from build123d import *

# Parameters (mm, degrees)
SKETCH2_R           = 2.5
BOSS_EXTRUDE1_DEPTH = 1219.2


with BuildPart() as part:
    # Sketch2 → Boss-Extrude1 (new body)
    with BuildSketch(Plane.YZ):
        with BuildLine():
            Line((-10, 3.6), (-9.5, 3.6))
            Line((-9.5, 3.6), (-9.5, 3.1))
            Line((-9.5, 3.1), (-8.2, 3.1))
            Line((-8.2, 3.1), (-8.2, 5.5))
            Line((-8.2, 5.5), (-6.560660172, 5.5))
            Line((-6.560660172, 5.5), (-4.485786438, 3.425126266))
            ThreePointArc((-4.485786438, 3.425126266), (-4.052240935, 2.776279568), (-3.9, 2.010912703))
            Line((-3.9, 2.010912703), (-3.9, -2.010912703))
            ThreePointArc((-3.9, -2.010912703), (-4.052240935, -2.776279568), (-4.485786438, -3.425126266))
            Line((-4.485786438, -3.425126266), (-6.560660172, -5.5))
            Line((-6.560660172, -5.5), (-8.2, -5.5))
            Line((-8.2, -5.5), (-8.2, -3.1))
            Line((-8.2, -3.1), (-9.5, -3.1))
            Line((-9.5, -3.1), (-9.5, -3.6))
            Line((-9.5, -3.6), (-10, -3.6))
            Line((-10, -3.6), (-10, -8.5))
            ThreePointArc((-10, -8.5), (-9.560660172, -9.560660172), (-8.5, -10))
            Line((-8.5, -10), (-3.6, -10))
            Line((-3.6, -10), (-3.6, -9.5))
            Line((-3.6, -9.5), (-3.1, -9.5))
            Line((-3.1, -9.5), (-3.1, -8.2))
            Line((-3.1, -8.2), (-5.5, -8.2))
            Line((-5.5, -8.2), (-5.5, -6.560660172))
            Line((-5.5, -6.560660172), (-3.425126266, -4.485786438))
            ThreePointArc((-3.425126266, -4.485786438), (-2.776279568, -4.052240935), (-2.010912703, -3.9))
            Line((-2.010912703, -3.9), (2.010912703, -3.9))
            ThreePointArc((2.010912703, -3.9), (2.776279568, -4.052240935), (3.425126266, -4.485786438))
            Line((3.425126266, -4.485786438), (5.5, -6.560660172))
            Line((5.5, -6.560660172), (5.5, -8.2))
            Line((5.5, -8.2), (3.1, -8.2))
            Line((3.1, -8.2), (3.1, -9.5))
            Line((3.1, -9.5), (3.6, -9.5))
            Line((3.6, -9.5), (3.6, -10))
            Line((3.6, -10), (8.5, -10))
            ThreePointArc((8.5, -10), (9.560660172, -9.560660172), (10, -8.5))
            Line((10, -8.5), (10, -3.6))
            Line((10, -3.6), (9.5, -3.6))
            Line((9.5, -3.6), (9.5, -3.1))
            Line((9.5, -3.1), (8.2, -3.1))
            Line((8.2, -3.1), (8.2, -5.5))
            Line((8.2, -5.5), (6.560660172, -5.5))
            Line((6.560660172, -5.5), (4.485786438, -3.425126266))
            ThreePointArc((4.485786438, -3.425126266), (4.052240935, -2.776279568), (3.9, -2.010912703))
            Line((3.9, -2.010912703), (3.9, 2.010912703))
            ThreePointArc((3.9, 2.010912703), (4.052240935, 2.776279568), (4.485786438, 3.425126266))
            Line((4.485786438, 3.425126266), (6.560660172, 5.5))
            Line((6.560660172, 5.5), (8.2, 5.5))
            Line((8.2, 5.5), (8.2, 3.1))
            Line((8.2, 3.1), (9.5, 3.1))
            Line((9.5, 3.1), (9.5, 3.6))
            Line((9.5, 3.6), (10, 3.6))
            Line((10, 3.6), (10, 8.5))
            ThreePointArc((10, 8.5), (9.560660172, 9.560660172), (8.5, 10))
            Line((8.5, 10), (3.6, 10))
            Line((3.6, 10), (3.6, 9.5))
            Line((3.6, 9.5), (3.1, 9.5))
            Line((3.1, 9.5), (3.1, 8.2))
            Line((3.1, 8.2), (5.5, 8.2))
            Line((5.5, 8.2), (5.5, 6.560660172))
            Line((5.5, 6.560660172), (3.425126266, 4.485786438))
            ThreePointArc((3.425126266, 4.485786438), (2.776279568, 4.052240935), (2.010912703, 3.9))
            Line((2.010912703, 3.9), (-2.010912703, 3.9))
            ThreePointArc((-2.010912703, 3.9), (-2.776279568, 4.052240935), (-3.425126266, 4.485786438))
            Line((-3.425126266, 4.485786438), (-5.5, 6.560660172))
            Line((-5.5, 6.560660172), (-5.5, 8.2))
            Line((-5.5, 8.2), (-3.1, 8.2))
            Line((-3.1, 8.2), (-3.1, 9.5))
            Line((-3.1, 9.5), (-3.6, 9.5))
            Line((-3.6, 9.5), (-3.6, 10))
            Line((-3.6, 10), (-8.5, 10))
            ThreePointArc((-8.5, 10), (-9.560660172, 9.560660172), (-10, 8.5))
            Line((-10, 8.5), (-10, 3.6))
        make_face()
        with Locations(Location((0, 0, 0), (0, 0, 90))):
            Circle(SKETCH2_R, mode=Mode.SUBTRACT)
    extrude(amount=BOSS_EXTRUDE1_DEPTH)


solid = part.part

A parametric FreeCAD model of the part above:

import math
import FreeCAD as App
import Part
import Sketcher

doc = App.newDocument("Part")
body = doc.addObject("PartDesign::Body", "Body")

# Sketch on YZ plane
sketch1 = body.newObject("Sketcher::SketchObject", "Sketch")
sketch1.AttachmentSupport = (doc.getObject("YZ_Plane"), [""])
sketch1.MapMode = "FlatFace"
sketch1.addGeometry([
    Part.LineSegment(App.Vector(-10, 3.6, 0), App.Vector(-9.5, 3.6, 0)),  # 0
    Part.LineSegment(App.Vector(-9.5, 3.6, 0), App.Vector(-9.5, 3.1, 0)),  # 1
    Part.LineSegment(App.Vector(-9.5, 3.1, 0), App.Vector(-8.2, 3.1, 0)),  # 2
    Part.LineSegment(App.Vector(-8.2, 3.1, 0), App.Vector(-8.2, 5.5, 0)),  # 3
    Part.LineSegment(App.Vector(-8.2, 5.5, 0), App.Vector(-6.6, 5.5, 0)),  # 4
    Part.LineSegment(App.Vector(-6.6, 5.5, 0), App.Vector(-4.5, 3.4, 0)),  # 5
    Part.ArcOfCircle(Part.Circle(App.Vector(-5.9, 2, 0), App.Vector(0, 0, 1), 2), math.radians(0), math.radians(45)),  # 6
    Part.LineSegment(App.Vector(-3.9, 2, 0), App.Vector(-3.9, -2, 0)),  # 7
    Part.ArcOfCircle(Part.Circle(App.Vector(-5.9, -2, 0), App.Vector(0, 0, 1), 2), math.radians(-45), math.radians(0)),  # 8
    Part.LineSegment(App.Vector(-4.5, -3.4, 0), App.Vector(-6.6, -5.5, 0)),  # 9
    Part.LineSegment(App.Vector(-6.6, -5.5, 0), App.Vector(-8.2, -5.5, 0)),  # 10
    Part.LineSegment(App.Vector(-8.2, -5.5, 0), App.Vector(-8.2, -3.1, 0)),  # 11
    Part.LineSegment(App.Vector(-8.2, -3.1, 0), App.Vector(-9.5, -3.1, 0)),  # 12
    Part.LineSegment(App.Vector(-9.5, -3.1, 0), App.Vector(-9.5, -3.6, 0)),  # 13
    Part.LineSegment(App.Vector(-9.5, -3.6, 0), App.Vector(-10, -3.6, 0)),  # 14
    Part.LineSegment(App.Vector(-10, -3.6, 0), App.Vector(-10, -8.5, 0)),  # 15
    Part.ArcOfCircle(Part.Circle(App.Vector(-8.5, -8.5, 0), App.Vector(0, 0, 1), 1.5), math.radians(180), math.radians(270)),  # 16
    Part.LineSegment(App.Vector(-8.5, -10, 0), App.Vector(-3.6, -10, 0)),  # 17
    Part.LineSegment(App.Vector(-3.6, -10, 0), App.Vector(-3.6, -9.5, 0)),  # 18
    Part.LineSegment(App.Vector(-3.6, -9.5, 0), App.Vector(-3.1, -9.5, 0)),  # 19
    Part.LineSegment(App.Vector(-3.1, -9.5, 0), App.Vector(-3.1, -8.2, 0)),  # 20
    Part.LineSegment(App.Vector(-3.1, -8.2, 0), App.Vector(-5.5, -8.2, 0)),  # 21
    Part.LineSegment(App.Vector(-5.5, -8.2, 0), App.Vector(-5.5, -6.6, 0)),  # 22
    Part.LineSegment(App.Vector(-5.5, -6.6, 0), App.Vector(-3.4, -4.5, 0)),  # 23
    Part.ArcOfCircle(Part.Circle(App.Vector(-2, -5.9, 0), App.Vector(0, 0, 1), 2), math.radians(90), math.radians(135)),  # 24
    Part.LineSegment(App.Vector(-2, -3.9, 0), App.Vector(2, -3.9, 0)),  # 25
    Part.ArcOfCircle(Part.Circle(App.Vector(2, -5.9, 0), App.Vector(0, 0, 1), 2), math.radians(45), math.radians(90)),  # 26
    Part.LineSegment(App.Vector(3.4, -4.5, 0), App.Vector(5.5, -6.6, 0)),  # 27
    Part.LineSegment(App.Vector(5.5, -6.6, 0), App.Vector(5.5, -8.2, 0)),  # 28
    Part.LineSegment(App.Vector(5.5, -8.2, 0), App.Vector(3.1, -8.2, 0)),  # 29
    Part.LineSegment(App.Vector(3.1, -8.2, 0), App.Vector(3.1, -9.5, 0)),  # 30
    Part.LineSegment(App.Vector(3.1, -9.5, 0), App.Vector(3.6, -9.5, 0)),  # 31
    Part.LineSegment(App.Vector(3.6, -9.5, 0), App.Vector(3.6, -10, 0)),  # 32
    Part.LineSegment(App.Vector(3.6, -10, 0), App.Vector(8.5, -10, 0)),  # 33
    Part.ArcOfCircle(Part.Circle(App.Vector(8.5, -8.5, 0), App.Vector(0, 0, 1), 1.5), math.radians(-90), math.radians(0)),  # 34
    Part.LineSegment(App.Vector(10, -8.5, 0), App.Vector(10, -3.6, 0)),  # 35
    Part.LineSegment(App.Vector(10, -3.6, 0), App.Vector(9.5, -3.6, 0)),  # 36
    Part.LineSegment(App.Vector(9.5, -3.6, 0), App.Vector(9.5, -3.1, 0)),  # 37
    Part.LineSegment(App.Vector(9.5, -3.1, 0), App.Vector(8.2, -3.1, 0)),  # 38
    Part.LineSegment(App.Vector(8.2, -3.1, 0), App.Vector(8.2, -5.5, 0)),  # 39
    Part.LineSegment(App.Vector(8.2, -5.5, 0), App.Vector(6.6, -5.5, 0)),  # 40
    Part.LineSegment(App.Vector(6.6, -5.5, 0), App.Vector(4.5, -3.4, 0)),  # 41
    Part.ArcOfCircle(Part.Circle(App.Vector(5.9, -2, 0), App.Vector(0, 0, 1), 2), math.radians(180), math.radians(225)),  # 42
    Part.LineSegment(App.Vector(3.9, -2, 0), App.Vector(3.9, 2, 0)),  # 43
    Part.ArcOfCircle(Part.Circle(App.Vector(5.9, 2, 0), App.Vector(0, 0, 1), 2), math.radians(135), math.radians(180)),  # 44
    Part.LineSegment(App.Vector(4.5, 3.4, 0), App.Vector(6.6, 5.5, 0)),  # 45
    Part.LineSegment(App.Vector(6.6, 5.5, 0), App.Vector(8.2, 5.5, 0)),  # 46
    Part.LineSegment(App.Vector(8.2, 5.5, 0), App.Vector(8.2, 3.1, 0)),  # 47
    Part.LineSegment(App.Vector(8.2, 3.1, 0), App.Vector(9.5, 3.1, 0)),  # 48
    Part.LineSegment(App.Vector(9.5, 3.1, 0), App.Vector(9.5, 3.6, 0)),  # 49
    Part.LineSegment(App.Vector(9.5, 3.6, 0), App.Vector(10, 3.6, 0)),  # 50
    Part.LineSegment(App.Vector(10, 3.6, 0), App.Vector(10, 8.5, 0)),  # 51
    Part.ArcOfCircle(Part.Circle(App.Vector(8.5, 8.5, 0), App.Vector(0, 0, 1), 1.5), math.radians(0), math.radians(90)),  # 52
    Part.LineSegment(App.Vector(8.5, 10, 0), App.Vector(3.6, 10, 0)),  # 53
    Part.LineSegment(App.Vector(3.6, 10, 0), App.Vector(3.6, 9.5, 0)),  # 54
    Part.LineSegment(App.Vector(3.6, 9.5, 0), App.Vector(3.1, 9.5, 0)),  # 55
    Part.LineSegment(App.Vector(3.1, 9.5, 0), App.Vector(3.1, 8.2, 0)),  # 56
    Part.LineSegment(App.Vector(3.1, 8.2, 0), App.Vector(5.5, 8.2, 0)),  # 57
    Part.LineSegment(App.Vector(5.5, 8.2, 0), App.Vector(5.5, 6.6, 0)),  # 58
    Part.LineSegment(App.Vector(5.5, 6.6, 0), App.Vector(3.4, 4.5, 0)),  # 59
    Part.ArcOfCircle(Part.Circle(App.Vector(2, 5.9, 0), App.Vector(0, 0, 1), 2), math.radians(-90), math.radians(-45)),  # 60
    Part.LineSegment(App.Vector(2, 3.9, 0), App.Vector(-2, 3.9, 0)),  # 61
    Part.ArcOfCircle(Part.Circle(App.Vector(-2, 5.9, 0), App.Vector(0, 0, 1), 2), math.radians(-135), math.radians(-90)),  # 62
    Part.LineSegment(App.Vector(-3.4, 4.5, 0), App.Vector(-5.5, 6.6, 0)),  # 63
    Part.LineSegment(App.Vector(-5.5, 6.6, 0), App.Vector(-5.5, 8.2, 0)),  # 64
    Part.LineSegment(App.Vector(-5.5, 8.2, 0), App.Vector(-3.1, 8.2, 0)),  # 65
    Part.LineSegment(App.Vector(-3.1, 8.2, 0), App.Vector(-3.1, 9.5, 0)),  # 66
    Part.LineSegment(App.Vector(-3.1, 9.5, 0), App.Vector(-3.6, 9.5, 0)),  # 67
    Part.LineSegment(App.Vector(-3.6, 9.5, 0), App.Vector(-3.6, 10, 0)),  # 68
    Part.LineSegment(App.Vector(-3.6, 10, 0), App.Vector(-8.5, 10, 0)),  # 69
    Part.ArcOfCircle(Part.Circle(App.Vector(-8.5, 8.5, 0), App.Vector(0, 0, 1), 1.5), math.radians(90), math.radians(180)),  # 70
    Part.LineSegment(App.Vector(-10, 8.5, 0), App.Vector(-10, 3.6, 0)),  # 71
    Part.Circle(App.Vector(0, 0, 0), App.Vector(0, 0, 1), 2.5),  # 72
], False)
sketch1.addConstraint([
    Sketcher.Constraint("Coincident", 0, 2, 1, 1),
    Sketcher.Constraint("Coincident", 1, 2, 2, 1),
    Sketcher.Constraint("Coincident", 2, 2, 3, 1),
    Sketcher.Constraint("Coincident", 3, 2, 4, 1),
    Sketcher.Constraint("Coincident", 4, 2, 5, 1),
    Sketcher.Constraint("Tangent", 5, 2, 6, 2),
    Sketcher.Constraint("Tangent", 6, 1, 7, 1),
    Sketcher.Constraint("Tangent", 7, 2, 8, 2),
    Sketcher.Constraint("Tangent", 8, 1, 9, 1),
    Sketcher.Constraint("Coincident", 9, 2, 10, 1),
    Sketcher.Constraint("Coincident", 10, 2, 11, 1),
    Sketcher.Constraint("Coincident", 11, 2, 12, 1),
    Sketcher.Constraint("Coincident", 12, 2, 13, 1),
    Sketcher.Constraint("Coincident", 13, 2, 14, 1),
    Sketcher.Constraint("Coincident", 14, 2, 15, 1),
    Sketcher.Constraint("Tangent", 15, 2, 16, 1),
    Sketcher.Constraint("Tangent", 16, 2, 17, 1),
    Sketcher.Constraint("Coincident", 17, 2, 18, 1),
    Sketcher.Constraint("Coincident", 18, 2, 19, 1),
    Sketcher.Constraint("Coincident", 19, 2, 20, 1),
    Sketcher.Constraint("Coincident", 20, 2, 21, 1),
    Sketcher.Constraint("Coincident", 21, 2, 22, 1),
    Sketcher.Constraint("Coincident", 22, 2, 23, 1),
    Sketcher.Constraint("Tangent", 23, 2, 24, 2),
    Sketcher.Constraint("Tangent", 24, 1, 25, 1),
    Sketcher.Constraint("Tangent", 25, 2, 26, 2),
    Sketcher.Constraint("Tangent", 26, 1, 27, 1),
    Sketcher.Constraint("Coincident", 27, 2, 28, 1),
    Sketcher.Constraint("Coincident", 28, 2, 29, 1),
    Sketcher.Constraint("Coincident", 29, 2, 30, 1),
    Sketcher.Constraint("Coincident", 30, 2, 31, 1),
    Sketcher.Constraint("Coincident", 31, 2, 32, 1),
    Sketcher.Constraint("Coincident", 32, 2, 33, 1),
    Sketcher.Constraint("Tangent", 33, 2, 34, 1),
    Sketcher.Constraint("Tangent", 34, 2, 35, 1),
    Sketcher.Constraint("Coincident", 35, 2, 36, 1),
    Sketcher.Constraint("Coincident", 36, 2, 37, 1),
    Sketcher.Constraint("Coincident", 37, 2, 38, 1),
    Sketcher.Constraint("Coincident", 38, 2, 39, 1),
    Sketcher.Constraint("Coincident", 39, 2, 40, 1),
    Sketcher.Constraint("Coincident", 40, 2, 41, 1),
    Sketcher.Constraint("Tangent", 41, 2, 42, 2),
    Sketcher.Constraint("Tangent", 42, 1, 43, 1),
    Sketcher.Constraint("Tangent", 43, 2, 44, 2),
    Sketcher.Constraint("Tangent", 44, 1, 45, 1),
    Sketcher.Constraint("Coincident", 45, 2, 46, 1),
    Sketcher.Constraint("Coincident", 46, 2, 47, 1),
    Sketcher.Constraint("Coincident", 47, 2, 48, 1),
    Sketcher.Constraint("Coincident", 48, 2, 49, 1),
    Sketcher.Constraint("Coincident", 49, 2, 50, 1),
    Sketcher.Constraint("Coincident", 50, 2, 51, 1),
    Sketcher.Constraint("Tangent", 51, 2, 52, 1),
    Sketcher.Constraint("Tangent", 52, 2, 53, 1),
    Sketcher.Constraint("Coincident", 53, 2, 54, 1),
    Sketcher.Constraint("Coincident", 54, 2, 55, 1),
    Sketcher.Constraint("Coincident", 55, 2, 56, 1),
    Sketcher.Constraint("Coincident", 56, 2, 57, 1),
    Sketcher.Constraint("Coincident", 57, 2, 58, 1),
    Sketcher.Constraint("Coincident", 58, 2, 59, 1),
    Sketcher.Constraint("Tangent", 59, 2, 60, 2),
    Sketcher.Constraint("Tangent", 60, 1, 61, 1),
    Sketcher.Constraint("Tangent", 61, 2, 62, 2),
    Sketcher.Constraint("Tangent", 62, 1, 63, 1),
    Sketcher.Constraint("Coincident", 63, 2, 64, 1),
    Sketcher.Constraint("Coincident", 64, 2, 65, 1),
    Sketcher.Constraint("Coincident", 65, 2, 66, 1),
    Sketcher.Constraint("Coincident", 66, 2, 67, 1),
    Sketcher.Constraint("Coincident", 67, 2, 68, 1),
    Sketcher.Constraint("Coincident", 68, 2, 69, 1),
    Sketcher.Constraint("Tangent", 69, 2, 70, 1),
    Sketcher.Constraint("Tangent", 70, 2, 71, 1),
    Sketcher.Constraint("Coincident", 71, 2, 0, 1),
    Sketcher.Constraint("Horizontal", 0),
    Sketcher.Constraint("Vertical", 1),
    Sketcher.Constraint("Horizontal", 2),
    Sketcher.Constraint("Vertical", 3),
    Sketcher.Constraint("Horizontal", 4),
    Sketcher.Constraint("Vertical", 7),
    Sketcher.Constraint("Horizontal", 10),
    Sketcher.Constraint("Vertical", 11),
    Sketcher.Constraint("Horizontal", 12),
    Sketcher.Constraint("Vertical", 13),
    Sketcher.Constraint("Horizontal", 14),
    Sketcher.Constraint("Vertical", 15),
    Sketcher.Constraint("Horizontal", 17),
    Sketcher.Constraint("Vertical", 18),
    Sketcher.Constraint("Horizontal", 19),
    Sketcher.Constraint("Vertical", 20),
    Sketcher.Constraint("Horizontal", 21),
    Sketcher.Constraint("Vertical", 22),
    Sketcher.Constraint("Horizontal", 25),
    Sketcher.Constraint("Vertical", 28),
    Sketcher.Constraint("Horizontal", 29),
    Sketcher.Constraint("Vertical", 30),
    Sketcher.Constraint("Horizontal", 31),
    Sketcher.Constraint("Vertical", 32),
    Sketcher.Constraint("Horizontal", 33),
    Sketcher.Constraint("Vertical", 35),
    Sketcher.Constraint("Horizontal", 36),
    Sketcher.Constraint("Vertical", 37),
    Sketcher.Constraint("Horizontal", 38),
    Sketcher.Constraint("Vertical", 39),
    Sketcher.Constraint("Horizontal", 40),
    Sketcher.Constraint("Vertical", 43),
    Sketcher.Constraint("Horizontal", 46),
    Sketcher.Constraint("Vertical", 47),
    Sketcher.Constraint("Horizontal", 48),
    Sketcher.Constraint("Vertical", 49),
    Sketcher.Constraint("Horizontal", 50),
    Sketcher.Constraint("Vertical", 51),
    Sketcher.Constraint("Horizontal", 53),
    Sketcher.Constraint("Vertical", 54),
    Sketcher.Constraint("Horizontal", 55),
    Sketcher.Constraint("Vertical", 56),
    Sketcher.Constraint("Horizontal", 57),
    Sketcher.Constraint("Vertical", 58),
    Sketcher.Constraint("Horizontal", 61),
    Sketcher.Constraint("Vertical", 64),
    Sketcher.Constraint("Horizontal", 65),
    Sketcher.Constraint("Vertical", 66),
    Sketcher.Constraint("Horizontal", 67),
    Sketcher.Constraint("Vertical", 68),
    Sketcher.Constraint("Horizontal", 69),
    Sketcher.Constraint("Vertical", 71),
    Sketcher.Constraint("Coincident", 72, 3, -1, 1),
    Sketcher.Constraint("Equal", 6, 8),
    Sketcher.Constraint("Equal", 8, 24),
    Sketcher.Constraint("Equal", 24, 26),
    Sketcher.Constraint("Equal", 16, 34),
    Sketcher.Constraint("Equal", 26, 42),
    Sketcher.Constraint("Equal", 42, 44),
    Sketcher.Constraint("Equal", 34, 52),
    Sketcher.Constraint("Equal", 44, 60),
    Sketcher.Constraint("Equal", 60, 62),
    Sketcher.Constraint("Equal", 52, 70),
    Sketcher.Constraint("Symmetric", 6, 3, 42, 3, -1, 1),
    Sketcher.Constraint("Symmetric", 16, 3, 52, 3, -1, 1),
    Sketcher.Constraint("Symmetric", 24, 3, 60, 3, -1, 1),
    Sketcher.Constraint("Symmetric", 34, 3, 70, 3, -1, 1),
    Sketcher.Constraint("Symmetric", 0, 2, 36, 2, -1, 1),
    Sketcher.Constraint("Symmetric", 2, 2, 38, 2, -1, 1),
    Sketcher.Constraint("Symmetric", 4, 2, 40, 2, -1, 1),
    Sketcher.Constraint("Symmetric", 8, 1, 44, 1, -1, 1),
    Sketcher.Constraint("Symmetric", 10, 2, 46, 2, -1, 1),
    Sketcher.Constraint("Symmetric", 12, 2, 48, 2, -1, 1),
    Sketcher.Constraint("Symmetric", 18, 2, 54, 2, -1, 1),
    Sketcher.Constraint("Symmetric", 20, 2, 56, 2, -1, 1),
    Sketcher.Constraint("Symmetric", 22, 2, 58, 2, -1, 1),
    Sketcher.Constraint("Symmetric", 26, 1, 62, 1, -1, 1),
    Sketcher.Constraint("Symmetric", 28, 2, 64, 2, -1, 1),
    Sketcher.Constraint("Symmetric", 30, 2, 66, 2, -1, 1),
    Sketcher.Constraint("Symmetric", 16, 3, 34, 3, -2),
    Sketcher.Constraint("Symmetric", 23, 2, 26, 1, -2),
    Sketcher.Constraint("Symmetric", 21, 2, 28, 2, -2),
    Sketcher.Constraint("Symmetric", 19, 2, 30, 2, -2),
    Sketcher.Constraint("Symmetric", 13, 2, 36, 2, -2),
    Sketcher.Constraint("Symmetric", 11, 2, 38, 2, -2),
    Sketcher.Constraint("Symmetric", 9, 2, 40, 2, -2),
    Sketcher.Constraint("Perpendicular", 5, 9),
    Sketcher.Constraint("Parallel", 9, 23),
    Sketcher.Constraint("Perpendicular", 23, 27),
    Sketcher.Constraint("Horizontal", 0, 2, 49, 2),
    Sketcher.Constraint("Vertical", 32, 2, 53, 2),
    Sketcher.Constraint("Vertical", 18, 2, 67, 2),
    Sketcher.Constraint("Equal", 14, 19),
    Sketcher.Constraint("Equal", 67, 1),
    Sketcher.Constraint("Equal", 65, 3),
    Sketcher.Constraint("Equal", 61, 7),
    Sketcher.Constraint("Equal", 69, 15),
    Sketcher.Constraint("Equal", 13, 18),
    Sketcher.Constraint("Equal", 48, 20),
    Sketcher.Constraint("Equal", 46, 22),
    Sketcher.Constraint("Equal", 9, 23),
    Sketcher.Constraint("Diameter", 72, 5.0),
    Sketcher.Constraint("Radius", 6, 2.0),
    Sketcher.Constraint("Radius", 16, 1.5),
    Sketcher.Constraint("DistanceX", 0, 1, 0, 2, 0.5),
    Sketcher.Constraint("DistanceX", 2, 1, 2, 2, 1.3),
    Sketcher.Constraint("DistanceX", 17, 1, 17, 2, 4.9),
    Sketcher.Constraint("DistanceX", 21, 2, 21, 1, 2.4),
    Sketcher.Constraint("DistanceX", 14, 2, -1, 1, 10.0),
    Sketcher.Constraint("DistanceX", 6, 3, -1, 1, 5.9),
    Sketcher.Constraint("DistanceX", 4, 1, 4, 2, 1.63934),
])
pad1 = body.newObject("PartDesign::Pad", "Pad")
pad1.Profile = sketch1
pad1.Length = 1219.2

doc.recompute()
